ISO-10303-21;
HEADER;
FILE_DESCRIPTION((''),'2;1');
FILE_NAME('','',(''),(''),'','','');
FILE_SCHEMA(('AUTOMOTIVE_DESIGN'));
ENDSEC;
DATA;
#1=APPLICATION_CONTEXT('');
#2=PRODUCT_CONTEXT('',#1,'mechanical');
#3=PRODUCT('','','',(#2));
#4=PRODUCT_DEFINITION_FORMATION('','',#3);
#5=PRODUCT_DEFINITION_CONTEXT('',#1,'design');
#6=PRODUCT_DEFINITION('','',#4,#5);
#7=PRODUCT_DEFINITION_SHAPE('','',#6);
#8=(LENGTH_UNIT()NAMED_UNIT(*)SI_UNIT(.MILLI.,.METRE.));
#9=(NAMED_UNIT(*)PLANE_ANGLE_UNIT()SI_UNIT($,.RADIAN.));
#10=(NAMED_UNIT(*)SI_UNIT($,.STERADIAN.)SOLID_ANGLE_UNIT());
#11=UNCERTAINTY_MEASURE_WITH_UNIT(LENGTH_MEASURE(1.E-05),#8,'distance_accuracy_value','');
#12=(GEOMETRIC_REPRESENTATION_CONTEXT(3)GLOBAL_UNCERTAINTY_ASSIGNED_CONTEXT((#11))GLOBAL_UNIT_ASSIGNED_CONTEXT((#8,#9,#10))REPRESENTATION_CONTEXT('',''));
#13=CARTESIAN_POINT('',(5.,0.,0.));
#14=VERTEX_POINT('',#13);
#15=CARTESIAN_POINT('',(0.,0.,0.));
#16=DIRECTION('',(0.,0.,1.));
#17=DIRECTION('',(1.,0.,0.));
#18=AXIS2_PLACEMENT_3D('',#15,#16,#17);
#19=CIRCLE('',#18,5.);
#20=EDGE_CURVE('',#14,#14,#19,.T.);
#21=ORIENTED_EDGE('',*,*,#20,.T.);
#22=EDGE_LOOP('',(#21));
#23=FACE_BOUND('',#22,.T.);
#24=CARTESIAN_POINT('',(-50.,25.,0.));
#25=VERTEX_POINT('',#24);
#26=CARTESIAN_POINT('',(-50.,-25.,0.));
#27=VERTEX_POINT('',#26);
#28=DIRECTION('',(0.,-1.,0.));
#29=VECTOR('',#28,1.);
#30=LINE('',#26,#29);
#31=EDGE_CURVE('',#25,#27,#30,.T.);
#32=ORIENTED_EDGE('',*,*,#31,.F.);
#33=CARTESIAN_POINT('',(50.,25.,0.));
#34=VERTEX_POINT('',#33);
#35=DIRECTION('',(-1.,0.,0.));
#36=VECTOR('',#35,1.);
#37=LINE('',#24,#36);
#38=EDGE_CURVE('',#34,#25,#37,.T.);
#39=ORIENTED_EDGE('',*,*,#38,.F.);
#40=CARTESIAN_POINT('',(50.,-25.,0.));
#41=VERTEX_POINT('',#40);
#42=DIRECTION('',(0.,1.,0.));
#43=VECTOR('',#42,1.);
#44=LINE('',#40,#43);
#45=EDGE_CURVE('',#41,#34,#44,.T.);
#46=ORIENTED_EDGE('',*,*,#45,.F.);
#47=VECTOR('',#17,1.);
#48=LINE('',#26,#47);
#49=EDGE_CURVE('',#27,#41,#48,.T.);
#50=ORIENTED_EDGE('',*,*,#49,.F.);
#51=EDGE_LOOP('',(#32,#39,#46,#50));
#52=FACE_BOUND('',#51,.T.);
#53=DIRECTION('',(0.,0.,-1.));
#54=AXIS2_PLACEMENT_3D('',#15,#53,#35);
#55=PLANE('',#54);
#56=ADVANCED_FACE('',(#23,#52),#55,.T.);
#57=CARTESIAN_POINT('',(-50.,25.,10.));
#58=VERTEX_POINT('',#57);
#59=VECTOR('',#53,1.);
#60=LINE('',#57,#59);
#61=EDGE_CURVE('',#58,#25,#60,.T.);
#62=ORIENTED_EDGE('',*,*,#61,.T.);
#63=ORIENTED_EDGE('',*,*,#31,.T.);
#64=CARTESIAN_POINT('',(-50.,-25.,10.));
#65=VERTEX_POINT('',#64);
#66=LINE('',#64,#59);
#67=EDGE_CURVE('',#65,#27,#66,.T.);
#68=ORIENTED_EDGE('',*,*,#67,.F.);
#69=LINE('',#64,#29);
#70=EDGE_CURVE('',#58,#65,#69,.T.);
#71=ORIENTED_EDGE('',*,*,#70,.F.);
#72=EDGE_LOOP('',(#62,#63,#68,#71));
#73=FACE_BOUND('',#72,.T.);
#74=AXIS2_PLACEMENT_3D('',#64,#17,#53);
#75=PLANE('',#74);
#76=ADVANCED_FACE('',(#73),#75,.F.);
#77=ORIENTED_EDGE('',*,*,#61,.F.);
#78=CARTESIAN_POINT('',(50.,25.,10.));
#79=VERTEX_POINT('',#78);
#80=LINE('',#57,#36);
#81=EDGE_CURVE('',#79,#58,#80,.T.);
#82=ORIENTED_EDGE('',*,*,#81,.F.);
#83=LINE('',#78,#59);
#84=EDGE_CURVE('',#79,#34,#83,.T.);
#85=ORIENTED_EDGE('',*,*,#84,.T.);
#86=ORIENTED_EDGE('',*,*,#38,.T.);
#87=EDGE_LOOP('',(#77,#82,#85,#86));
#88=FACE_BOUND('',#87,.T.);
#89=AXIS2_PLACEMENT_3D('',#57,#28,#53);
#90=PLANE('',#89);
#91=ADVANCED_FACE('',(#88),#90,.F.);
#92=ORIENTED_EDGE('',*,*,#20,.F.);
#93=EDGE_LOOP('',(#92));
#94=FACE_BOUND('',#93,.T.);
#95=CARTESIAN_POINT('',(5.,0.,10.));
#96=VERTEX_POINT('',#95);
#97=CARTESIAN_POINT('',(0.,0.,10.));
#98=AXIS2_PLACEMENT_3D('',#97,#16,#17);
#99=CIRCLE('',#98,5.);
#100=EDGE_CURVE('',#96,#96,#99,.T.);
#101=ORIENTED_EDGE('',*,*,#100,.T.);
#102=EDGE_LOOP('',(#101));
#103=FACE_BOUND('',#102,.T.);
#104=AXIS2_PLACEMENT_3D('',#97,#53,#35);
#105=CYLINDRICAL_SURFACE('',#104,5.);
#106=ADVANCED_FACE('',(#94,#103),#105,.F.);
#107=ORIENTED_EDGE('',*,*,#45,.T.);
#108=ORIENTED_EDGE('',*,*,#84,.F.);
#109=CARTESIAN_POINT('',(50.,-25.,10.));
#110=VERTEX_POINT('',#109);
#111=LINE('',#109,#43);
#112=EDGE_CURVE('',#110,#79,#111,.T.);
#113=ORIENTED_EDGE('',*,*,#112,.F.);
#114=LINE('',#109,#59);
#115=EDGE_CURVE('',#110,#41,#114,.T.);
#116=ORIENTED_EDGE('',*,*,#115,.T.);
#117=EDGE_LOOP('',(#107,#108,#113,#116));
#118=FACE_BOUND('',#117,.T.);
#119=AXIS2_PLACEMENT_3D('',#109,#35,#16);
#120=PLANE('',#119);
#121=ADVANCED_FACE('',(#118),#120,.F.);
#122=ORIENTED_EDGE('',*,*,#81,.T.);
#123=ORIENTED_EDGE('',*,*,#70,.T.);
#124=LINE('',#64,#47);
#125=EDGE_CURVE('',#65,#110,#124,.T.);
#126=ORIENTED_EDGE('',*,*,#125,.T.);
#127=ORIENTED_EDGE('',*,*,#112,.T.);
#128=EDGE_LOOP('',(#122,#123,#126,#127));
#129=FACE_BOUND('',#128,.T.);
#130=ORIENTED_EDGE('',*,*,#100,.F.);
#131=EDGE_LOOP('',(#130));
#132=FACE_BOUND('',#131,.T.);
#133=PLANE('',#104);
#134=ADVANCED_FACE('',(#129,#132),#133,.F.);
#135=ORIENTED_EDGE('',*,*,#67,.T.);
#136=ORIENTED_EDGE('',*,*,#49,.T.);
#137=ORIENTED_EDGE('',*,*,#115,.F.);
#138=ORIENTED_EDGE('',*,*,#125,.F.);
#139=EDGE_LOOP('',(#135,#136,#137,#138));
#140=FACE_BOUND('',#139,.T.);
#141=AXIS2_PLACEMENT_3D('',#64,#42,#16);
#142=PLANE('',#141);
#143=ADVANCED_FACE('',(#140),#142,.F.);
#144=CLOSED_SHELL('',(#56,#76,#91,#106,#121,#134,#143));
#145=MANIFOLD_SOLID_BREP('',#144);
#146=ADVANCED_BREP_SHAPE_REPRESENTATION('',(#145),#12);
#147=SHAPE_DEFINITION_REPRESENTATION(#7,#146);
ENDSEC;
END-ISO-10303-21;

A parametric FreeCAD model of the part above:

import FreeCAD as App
import Part
import Sketcher

V = App.Vector
Q = App.Units.Quantity

doc = App.newDocument("Part")
body = doc.addObject("PartDesign::Body", "Body")

# Sketch on XY plane
sketch1 = doc.addObject("Sketcher::SketchObject", "Sketch")
body.addObject(sketch1)
sketch1.AttachmentSupport = (doc.XY_Plane, [""])
sketch1.MapMode = "FlatFace"
sketch1.addGeometry(Part.LineSegment(V(-50, 25, 0), V(-50, -25, 0)), False)
sketch1.addGeometry(Part.LineSegment(V(-50, -25, 0), V(50, -25, 0)), False)
sketch1.addGeometry(Part.LineSegment(V(50, -25, 0), V(50, 25, 0)), False)
sketch1.addGeometry(Part.LineSegment(V(50, 25, 0), V(-50, 25, 0)), False)
sketch1.addGeometry(Part.Circle(V(0, 0, 0), V(0, 0, 1), 5), False)
sketch1.addConstraint(Sketcher.Constraint("Coincident", 0, 2, 1, 1))
sketch1.addConstraint(Sketcher.Constraint("Coincident", 1, 2, 2, 1))
sketch1.addConstraint(Sketcher.Constraint("Coincident", 2, 2, 3, 1))
sketch1.addConstraint(Sketcher.Constraint("Coincident", 3, 2, 0, 1))
sketch1.addConstraint(Sketcher.Constraint("Vertical", 0))
sketch1.addConstraint(Sketcher.Constraint("Horizontal", 1))
sketch1.addConstraint(Sketcher.Constraint("Vertical", 2))
sketch1.addConstraint(Sketcher.Constraint("Horizontal", 3))
sketch1.addConstraint(Sketcher.Constraint("Coincident", 4, 3, -1, 1))
sketch1.addConstraint(Sketcher.Constraint("Symmetric", 0, 2, 2, 2, -1, 1))
sketch1.addConstraint(Sketcher.Constraint("Diameter", 4, Q("10 mm")))
sketch1.addConstraint(Sketcher.Constraint("DistanceX", 1, 1, 1, 2, Q("100 mm")))
sketch1.addConstraint(Sketcher.Constraint("DistanceY", 0, 2, 0, 1, Q("50 mm")))
pad1 = doc.addObject("PartDesign::Pad", "Pad")
body.addObject(pad1)
pad1.Profile = sketch1
pad1.Length = 10

doc.recompute()
